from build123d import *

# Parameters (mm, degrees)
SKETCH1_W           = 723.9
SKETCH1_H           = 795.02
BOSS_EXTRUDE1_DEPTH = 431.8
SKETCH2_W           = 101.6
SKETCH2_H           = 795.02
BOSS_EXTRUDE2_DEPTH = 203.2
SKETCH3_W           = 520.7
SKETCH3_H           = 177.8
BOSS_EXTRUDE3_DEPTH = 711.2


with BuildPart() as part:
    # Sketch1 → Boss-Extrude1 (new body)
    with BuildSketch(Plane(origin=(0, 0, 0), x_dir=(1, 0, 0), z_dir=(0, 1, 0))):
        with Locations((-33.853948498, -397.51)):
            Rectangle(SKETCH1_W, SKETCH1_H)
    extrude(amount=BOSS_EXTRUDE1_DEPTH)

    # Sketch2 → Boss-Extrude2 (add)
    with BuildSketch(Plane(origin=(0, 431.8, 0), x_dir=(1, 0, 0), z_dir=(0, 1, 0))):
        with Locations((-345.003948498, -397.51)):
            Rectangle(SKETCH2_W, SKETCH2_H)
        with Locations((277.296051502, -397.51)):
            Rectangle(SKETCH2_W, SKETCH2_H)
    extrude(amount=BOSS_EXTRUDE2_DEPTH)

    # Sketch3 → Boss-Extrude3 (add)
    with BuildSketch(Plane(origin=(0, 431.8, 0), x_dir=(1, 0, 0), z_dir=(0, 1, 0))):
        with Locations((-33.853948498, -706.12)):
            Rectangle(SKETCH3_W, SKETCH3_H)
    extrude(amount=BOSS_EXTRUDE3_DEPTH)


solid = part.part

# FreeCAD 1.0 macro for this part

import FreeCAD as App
import Part
import Sketcher

V = App.Vector
Q = App.Units.Quantity

doc = App.newDocument("Part")
params = doc.addObject("Spreadsheet::Sheet", "Params")
for row, (alias, value) in enumerate([
    ("sketch1_width", "28.5 in"),
    ("sketch1_height", "31.3 in"),
    ("pad1_length", "17 in"),
    ("sketch2_width", "4 in"),
    ("sketch2_height", "31.3 in"),
    ("pad2_length", "8 in"),
    ("sketch3_height", "7 in"),
    ("sketch3_width", "20.5 in"),
    ("pad3_length", "28 in"),
], start=1):
    params.set(f"A{row}", alias)
    params.set(f"B{row}", "=" + value)
    params.setAlias(f"B{row}", alias)

body = doc.addObject("PartDesign::Body", "Body")

# Sketch on XZ plane
sketch1 = body.newObject("Sketcher::SketchObject", "Sketch")
sketch1.AttachmentSupport = (doc.getObject("XZ_Plane"), [""])
sketch1.MapMode = "FlatFace"
sketch1.addGeometry([
    Part.LineSegment(V(-396, 0, 0), V(-396, 795, 0)),
    Part.LineSegment(V(-396, 795, 0), V(328, 795, 0)),
    Part.LineSegment(V(328, 795, 0), V(328, 0, 0)),
    Part.LineSegment(V(328, 0, 0), V(-396, 0, 0)),
], False)
sketch1.addConstraint([
    Sketcher.Constraint("Coincident", 0, 2, 1, 1),
    Sketcher.Constraint("Coincident", 1, 2, 2, 1),
    Sketcher.Constraint("Coincident", 2, 2, 3, 1),
    Sketcher.Constraint("Coincident", 3, 2, 0, 1),
    Sketcher.Constraint("Vertical", 0),
    Sketcher.Constraint("Horizontal", 1),
    Sketcher.Constraint("Vertical", 2),
    Sketcher.Constraint("Horizontal", 3),
    Sketcher.Constraint("PointOnObject", 2, 2, -1),
    Sketcher.Constraint("DistanceX", 1, 1, 1, 2, Q("28.5 in")),
    Sketcher.Constraint("DistanceY", 0, 1, 0, 2, Q("31.3 in")),
    Sketcher.Constraint("DistanceX", 0, 2, -1, 1, 395.803948),
])
sketch1.setExpression("Constraints[9]", "Params.sketch1_width")
sketch1.setExpression("Constraints[10]", "Params.sketch1_height")
pad1 = body.newObject("PartDesign::Pad", "Pad")
pad1.Profile = sketch1
pad1.setExpression("Length", "Params.pad1_length")
pad1.Reversed = True

# Sketch on XZ plane
sketch2 = body.newObject("Sketcher::SketchObject", "Sketch001")
sketch2.AttachmentSupport = (doc.getObject("XZ_Plane"), [""])
sketch2.MapMode = "FlatFace"
sketch2.AttachmentOffset = App.Placement(V(0, 0, -17 * 25.4), App.Rotation())
sketch2.addGeometry([
    Part.LineSegment(V(-396, 0, 0), V(-396, 795, 0)),  # 0
    Part.LineSegment(V(-396, 795, 0), V(-294, 795, 0)),  # 1
    Part.LineSegment(V(-294, 795, 0), V(-294, 0, 0)),  # 2
    Part.LineSegment(V(-294, 0, 0), V(-396, 0, 0)),  # 3
    Part.LineSegment(V(226, 0, 0), V(226, 795, 0)),  # 4
    Part.LineSegment(V(226, 795, 0), V(328, 795, 0)),  # 5
    Part.LineSegment(V(328, 795, 0), V(328, 0, 0)),  # 6
    Part.LineSegment(V(328, 0, 0), V(226, 0, 0)),  # 7
], False)
sketch2.addConstraint([
    Sketcher.Constraint("Coincident", 0, 2, 1, 1),
    Sketcher.Constraint("Coincident", 1, 2, 2, 1),
    Sketcher.Constraint("Coincident", 2, 2, 3, 1),
    Sketcher.Constraint("Coincident", 3, 2, 0, 1),
    Sketcher.Constraint("Coincident", 4, 2, 5, 1),
    Sketcher.Constraint("Coincident", 5, 2, 6, 1),
    Sketcher.Constraint("Coincident", 6, 2, 7, 1),
    Sketcher.Constraint("Coincident", 7, 2, 4, 1),
    Sketcher.Constraint("Vertical", 0),
    Sketcher.Constraint("Horizontal", 1),
    Sketcher.Constraint("Vertical", 2),
    Sketcher.Constraint("Horizontal", 3),
    Sketcher.Constraint("Vertical", 4),
    Sketcher.Constraint("Horizontal", 5),
    Sketcher.Constraint("Vertical", 6),
    Sketcher.Constraint("Horizontal", 7),
    Sketcher.Constraint("PointOnObject", 2, 2, -1),
    Sketcher.Constraint("PointOnObject", 6, 2, -1),
    Sketcher.Constraint("Horizontal", 1, 2, 4, 2),
    Sketcher.Constraint("Equal", 3, 5),
    Sketcher.Constraint("DistanceX", 1, 1, 1, 2, Q("4 in")),
    Sketcher.Constraint("DistanceY", 0, 1, 0, 2, Q("31.3 in")),
    Sketcher.Constraint("DistanceX", 1, 2, 4, 2, Q("20.5 in")),
    Sketcher.Constraint("DistanceX", 0, 2, -1, 1, 395.803948),
])
sketch2.setExpression("Constraints[20]", "Params.sketch2_width")
sketch2.setExpression("Constraints[21]", "Params.sketch2_height")
pad2 = body.newObject("PartDesign::Pad", "Pad001")
pad2.Profile = sketch2
pad2.setExpression("Length", "Params.pad2_length")
pad2.Reversed = True

# Sketch on XZ plane
sketch3 = body.newObject("Sketcher::SketchObject", "Sketch002")
sketch3.AttachmentSupport = (doc.getObject("XZ_Plane"), [""])
sketch3.MapMode = "FlatFace"
sketch3.AttachmentOffset = App.Placement(V(0, 0, -17 * 25.4), App.Rotation())
sketch3.addGeometry([
    Part.LineSegment(V(-294, 617, 0), V(-294, 795, 0)),
    Part.LineSegment(V(-294, 795, 0), V(226, 795, 0)),
    Part.LineSegment(V(226, 795, 0), V(226, 617, 0)),
    Part.LineSegment(V(226, 617, 0), V(-294, 617, 0)),
], False)
sketch3.addConstraint([
    Sketcher.Constraint("Coincident", 0, 2, 1, 1),
    Sketcher.Constraint("Coincident", 1, 2, 2, 1),
    Sketcher.Constraint("Coincident", 2, 2, 3, 1),
    Sketcher.Constraint("Coincident", 3, 2, 0, 1),
    Sketcher.Constraint("Vertical", 0),
    Sketcher.Constraint("Horizontal", 1),
    Sketcher.Constraint("Vertical", 2),
    Sketcher.Constraint("Horizontal", 3),
    Sketcher.Constraint("DistanceY", 0, 1, 0, 2, Q("7 in")),
    Sketcher.Constraint("DistanceX", 1, 1, 1, 2, Q("20.5 in")),
    Sketcher.Constraint("DistanceY", -1, 1, 0, 2, Q("31.3 in")),
    Sketcher.Constraint("DistanceX", 0, 2, -1, 1, 294.203948),
])
sketch3.setExpression("Constraints[8]", "Params.sketch3_height")
sketch3.setExpression("Constraints[9]", "Params.sketch3_width")
pad3 = body.newObject("PartDesign::Pad", "Pad002")
pad3.Profile = sketch3
pad3.setExpression("Length", "Params.pad3_length")
pad3.Reversed = True

doc.recompute()
